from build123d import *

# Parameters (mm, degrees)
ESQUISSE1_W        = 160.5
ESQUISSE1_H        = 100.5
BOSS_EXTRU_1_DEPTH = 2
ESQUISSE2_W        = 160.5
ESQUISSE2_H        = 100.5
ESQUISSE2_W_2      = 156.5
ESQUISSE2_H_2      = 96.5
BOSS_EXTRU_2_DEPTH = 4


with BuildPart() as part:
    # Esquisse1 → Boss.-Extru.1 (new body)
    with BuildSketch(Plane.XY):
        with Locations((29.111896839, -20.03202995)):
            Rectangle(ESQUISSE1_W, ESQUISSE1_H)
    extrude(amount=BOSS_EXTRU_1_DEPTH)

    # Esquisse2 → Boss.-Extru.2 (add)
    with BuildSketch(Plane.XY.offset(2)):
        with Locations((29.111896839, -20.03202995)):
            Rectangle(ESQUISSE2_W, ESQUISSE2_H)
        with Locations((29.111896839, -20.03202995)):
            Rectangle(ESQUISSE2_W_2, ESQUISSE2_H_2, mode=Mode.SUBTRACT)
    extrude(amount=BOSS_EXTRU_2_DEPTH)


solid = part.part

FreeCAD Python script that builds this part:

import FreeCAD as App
import Part
import Sketcher
Q = App.Units.Quantity


def add_polygon(sketch, points):
    """Adds a closed chain of lines whose ends are joined by coincident constraints."""
    first, n = sketch.GeometryCount, len(points)
    for a, b in zip(points, points[1:] + points[:1]):
        sketch.addGeometry(Part.LineSegment(App.Vector(*a, 0), App.Vector(*b, 0)), False)
    for i in range(n):
        sketch.addConstraint(Sketcher.Constraint("Coincident", first + i, 2, first + (i + 1) % n, 1))

doc = App.newDocument("Part")
body = doc.addObject("PartDesign::Body", "Body")

# Sketch on XY plane
sketch1 = body.newObject("Sketcher::SketchObject", "Sketch")
sketch1.AttachmentSupport = (doc.getObject("XY_Plane"), [""])
sketch1.MapMode = "FlatFace"
add_polygon(sketch1, [(-51, 30), (-51, -70), (109, -70), (109, 30)])  # lines 0-3
sketch1.addConstraint(Sketcher.Constraint("Vertical", 0))
sketch1.addConstraint(Sketcher.Constraint("Horizontal", 1))
sketch1.addConstraint(Sketcher.Constraint("Vertical", 2))
sketch1.addConstraint(Sketcher.Constraint("Horizontal", 3))
sketch1.addConstraint(Sketcher.Constraint("DistanceX", 1, 1, 1, 2, Q("160.5 mm")))
sketch1.addConstraint(Sketcher.Constraint("DistanceY", 0, 2, 0, 1, Q("100.5 mm")))
sketch1.addConstraint(Sketcher.Constraint("DistanceY", 0, 2, -1, 1, Q("70.28203 mm")))
sketch1.addConstraint(Sketcher.Constraint("DistanceX", 0, 2, -1, 1, Q("51.138103 mm")))
pad1 = body.newObject("PartDesign::Pad", "Pad")
pad1.Profile = sketch1
pad1.Length = 2

# Sketch on XY plane
sketch2 = body.newObject("Sketcher::SketchObject", "Sketch001")
sketch2.AttachmentSupport = (doc.getObject("XY_Plane"), [""])
sketch2.MapMode = "FlatFace"
sketch2.AttachmentOffset = App.Placement(App.Vector(0, 0, 2), App.Rotation())
add_polygon(sketch2, [(-51, 30), (-51, -70), (109, -70), (109, 30)])  # lines 0-3
add_polygon(sketch2, [(107, -68), (-49, -68), (-49, 28), (107, 28)])  # lines 4-7
sketch2.addConstraint(Sketcher.Constraint("Vertical", 0))
sketch2.addConstraint(Sketcher.Constraint("Horizontal", 1))
sketch2.addConstraint(Sketcher.Constraint("Vertical", 2))
sketch2.addConstraint(Sketcher.Constraint("Horizontal", 3))
sketch2.addConstraint(Sketcher.Constraint("Horizontal", 4))
sketch2.addConstraint(Sketcher.Constraint("Vertical", 5))
sketch2.addConstraint(Sketcher.Constraint("Horizontal", 6))
sketch2.addConstraint(Sketcher.Constraint("Vertical", 7))
sketch2.addConstraint(Sketcher.Constraint("DistanceX", 1, 1, 1, 2, Q("160.5 mm")))
sketch2.addConstraint(Sketcher.Constraint("DistanceX", 4, 2, 4, 1, Q("156.5 mm")))
sketch2.addConstraint(Sketcher.Constraint("DistanceY", 0, 2, 0, 1, Q("100.5 mm")))
sketch2.addConstraint(Sketcher.Constraint("DistanceY", 5, 1, 5, 2, Q("96.5 mm")))
sketch2.addConstraint(Sketcher.Constraint("DistanceX", 0, 2, 4, 2, Q("2 mm")))
sketch2.addConstraint(Sketcher.Constraint("DistanceY", 0, 2, 4, 2, Q("2 mm")))
sketch2.addConstraint(Sketcher.Constraint("DistanceY", 0, 2, -1, 1, Q("70.28203 mm")))
sketch2.addConstraint(Sketcher.Constraint("DistanceX", 0, 2, -1, 1, Q("51.138103 mm")))
pad2 = body.newObject("PartDesign::Pad", "Pad001")
pad2.Profile = sketch2
pad2.Length = 4

doc.recompute()
